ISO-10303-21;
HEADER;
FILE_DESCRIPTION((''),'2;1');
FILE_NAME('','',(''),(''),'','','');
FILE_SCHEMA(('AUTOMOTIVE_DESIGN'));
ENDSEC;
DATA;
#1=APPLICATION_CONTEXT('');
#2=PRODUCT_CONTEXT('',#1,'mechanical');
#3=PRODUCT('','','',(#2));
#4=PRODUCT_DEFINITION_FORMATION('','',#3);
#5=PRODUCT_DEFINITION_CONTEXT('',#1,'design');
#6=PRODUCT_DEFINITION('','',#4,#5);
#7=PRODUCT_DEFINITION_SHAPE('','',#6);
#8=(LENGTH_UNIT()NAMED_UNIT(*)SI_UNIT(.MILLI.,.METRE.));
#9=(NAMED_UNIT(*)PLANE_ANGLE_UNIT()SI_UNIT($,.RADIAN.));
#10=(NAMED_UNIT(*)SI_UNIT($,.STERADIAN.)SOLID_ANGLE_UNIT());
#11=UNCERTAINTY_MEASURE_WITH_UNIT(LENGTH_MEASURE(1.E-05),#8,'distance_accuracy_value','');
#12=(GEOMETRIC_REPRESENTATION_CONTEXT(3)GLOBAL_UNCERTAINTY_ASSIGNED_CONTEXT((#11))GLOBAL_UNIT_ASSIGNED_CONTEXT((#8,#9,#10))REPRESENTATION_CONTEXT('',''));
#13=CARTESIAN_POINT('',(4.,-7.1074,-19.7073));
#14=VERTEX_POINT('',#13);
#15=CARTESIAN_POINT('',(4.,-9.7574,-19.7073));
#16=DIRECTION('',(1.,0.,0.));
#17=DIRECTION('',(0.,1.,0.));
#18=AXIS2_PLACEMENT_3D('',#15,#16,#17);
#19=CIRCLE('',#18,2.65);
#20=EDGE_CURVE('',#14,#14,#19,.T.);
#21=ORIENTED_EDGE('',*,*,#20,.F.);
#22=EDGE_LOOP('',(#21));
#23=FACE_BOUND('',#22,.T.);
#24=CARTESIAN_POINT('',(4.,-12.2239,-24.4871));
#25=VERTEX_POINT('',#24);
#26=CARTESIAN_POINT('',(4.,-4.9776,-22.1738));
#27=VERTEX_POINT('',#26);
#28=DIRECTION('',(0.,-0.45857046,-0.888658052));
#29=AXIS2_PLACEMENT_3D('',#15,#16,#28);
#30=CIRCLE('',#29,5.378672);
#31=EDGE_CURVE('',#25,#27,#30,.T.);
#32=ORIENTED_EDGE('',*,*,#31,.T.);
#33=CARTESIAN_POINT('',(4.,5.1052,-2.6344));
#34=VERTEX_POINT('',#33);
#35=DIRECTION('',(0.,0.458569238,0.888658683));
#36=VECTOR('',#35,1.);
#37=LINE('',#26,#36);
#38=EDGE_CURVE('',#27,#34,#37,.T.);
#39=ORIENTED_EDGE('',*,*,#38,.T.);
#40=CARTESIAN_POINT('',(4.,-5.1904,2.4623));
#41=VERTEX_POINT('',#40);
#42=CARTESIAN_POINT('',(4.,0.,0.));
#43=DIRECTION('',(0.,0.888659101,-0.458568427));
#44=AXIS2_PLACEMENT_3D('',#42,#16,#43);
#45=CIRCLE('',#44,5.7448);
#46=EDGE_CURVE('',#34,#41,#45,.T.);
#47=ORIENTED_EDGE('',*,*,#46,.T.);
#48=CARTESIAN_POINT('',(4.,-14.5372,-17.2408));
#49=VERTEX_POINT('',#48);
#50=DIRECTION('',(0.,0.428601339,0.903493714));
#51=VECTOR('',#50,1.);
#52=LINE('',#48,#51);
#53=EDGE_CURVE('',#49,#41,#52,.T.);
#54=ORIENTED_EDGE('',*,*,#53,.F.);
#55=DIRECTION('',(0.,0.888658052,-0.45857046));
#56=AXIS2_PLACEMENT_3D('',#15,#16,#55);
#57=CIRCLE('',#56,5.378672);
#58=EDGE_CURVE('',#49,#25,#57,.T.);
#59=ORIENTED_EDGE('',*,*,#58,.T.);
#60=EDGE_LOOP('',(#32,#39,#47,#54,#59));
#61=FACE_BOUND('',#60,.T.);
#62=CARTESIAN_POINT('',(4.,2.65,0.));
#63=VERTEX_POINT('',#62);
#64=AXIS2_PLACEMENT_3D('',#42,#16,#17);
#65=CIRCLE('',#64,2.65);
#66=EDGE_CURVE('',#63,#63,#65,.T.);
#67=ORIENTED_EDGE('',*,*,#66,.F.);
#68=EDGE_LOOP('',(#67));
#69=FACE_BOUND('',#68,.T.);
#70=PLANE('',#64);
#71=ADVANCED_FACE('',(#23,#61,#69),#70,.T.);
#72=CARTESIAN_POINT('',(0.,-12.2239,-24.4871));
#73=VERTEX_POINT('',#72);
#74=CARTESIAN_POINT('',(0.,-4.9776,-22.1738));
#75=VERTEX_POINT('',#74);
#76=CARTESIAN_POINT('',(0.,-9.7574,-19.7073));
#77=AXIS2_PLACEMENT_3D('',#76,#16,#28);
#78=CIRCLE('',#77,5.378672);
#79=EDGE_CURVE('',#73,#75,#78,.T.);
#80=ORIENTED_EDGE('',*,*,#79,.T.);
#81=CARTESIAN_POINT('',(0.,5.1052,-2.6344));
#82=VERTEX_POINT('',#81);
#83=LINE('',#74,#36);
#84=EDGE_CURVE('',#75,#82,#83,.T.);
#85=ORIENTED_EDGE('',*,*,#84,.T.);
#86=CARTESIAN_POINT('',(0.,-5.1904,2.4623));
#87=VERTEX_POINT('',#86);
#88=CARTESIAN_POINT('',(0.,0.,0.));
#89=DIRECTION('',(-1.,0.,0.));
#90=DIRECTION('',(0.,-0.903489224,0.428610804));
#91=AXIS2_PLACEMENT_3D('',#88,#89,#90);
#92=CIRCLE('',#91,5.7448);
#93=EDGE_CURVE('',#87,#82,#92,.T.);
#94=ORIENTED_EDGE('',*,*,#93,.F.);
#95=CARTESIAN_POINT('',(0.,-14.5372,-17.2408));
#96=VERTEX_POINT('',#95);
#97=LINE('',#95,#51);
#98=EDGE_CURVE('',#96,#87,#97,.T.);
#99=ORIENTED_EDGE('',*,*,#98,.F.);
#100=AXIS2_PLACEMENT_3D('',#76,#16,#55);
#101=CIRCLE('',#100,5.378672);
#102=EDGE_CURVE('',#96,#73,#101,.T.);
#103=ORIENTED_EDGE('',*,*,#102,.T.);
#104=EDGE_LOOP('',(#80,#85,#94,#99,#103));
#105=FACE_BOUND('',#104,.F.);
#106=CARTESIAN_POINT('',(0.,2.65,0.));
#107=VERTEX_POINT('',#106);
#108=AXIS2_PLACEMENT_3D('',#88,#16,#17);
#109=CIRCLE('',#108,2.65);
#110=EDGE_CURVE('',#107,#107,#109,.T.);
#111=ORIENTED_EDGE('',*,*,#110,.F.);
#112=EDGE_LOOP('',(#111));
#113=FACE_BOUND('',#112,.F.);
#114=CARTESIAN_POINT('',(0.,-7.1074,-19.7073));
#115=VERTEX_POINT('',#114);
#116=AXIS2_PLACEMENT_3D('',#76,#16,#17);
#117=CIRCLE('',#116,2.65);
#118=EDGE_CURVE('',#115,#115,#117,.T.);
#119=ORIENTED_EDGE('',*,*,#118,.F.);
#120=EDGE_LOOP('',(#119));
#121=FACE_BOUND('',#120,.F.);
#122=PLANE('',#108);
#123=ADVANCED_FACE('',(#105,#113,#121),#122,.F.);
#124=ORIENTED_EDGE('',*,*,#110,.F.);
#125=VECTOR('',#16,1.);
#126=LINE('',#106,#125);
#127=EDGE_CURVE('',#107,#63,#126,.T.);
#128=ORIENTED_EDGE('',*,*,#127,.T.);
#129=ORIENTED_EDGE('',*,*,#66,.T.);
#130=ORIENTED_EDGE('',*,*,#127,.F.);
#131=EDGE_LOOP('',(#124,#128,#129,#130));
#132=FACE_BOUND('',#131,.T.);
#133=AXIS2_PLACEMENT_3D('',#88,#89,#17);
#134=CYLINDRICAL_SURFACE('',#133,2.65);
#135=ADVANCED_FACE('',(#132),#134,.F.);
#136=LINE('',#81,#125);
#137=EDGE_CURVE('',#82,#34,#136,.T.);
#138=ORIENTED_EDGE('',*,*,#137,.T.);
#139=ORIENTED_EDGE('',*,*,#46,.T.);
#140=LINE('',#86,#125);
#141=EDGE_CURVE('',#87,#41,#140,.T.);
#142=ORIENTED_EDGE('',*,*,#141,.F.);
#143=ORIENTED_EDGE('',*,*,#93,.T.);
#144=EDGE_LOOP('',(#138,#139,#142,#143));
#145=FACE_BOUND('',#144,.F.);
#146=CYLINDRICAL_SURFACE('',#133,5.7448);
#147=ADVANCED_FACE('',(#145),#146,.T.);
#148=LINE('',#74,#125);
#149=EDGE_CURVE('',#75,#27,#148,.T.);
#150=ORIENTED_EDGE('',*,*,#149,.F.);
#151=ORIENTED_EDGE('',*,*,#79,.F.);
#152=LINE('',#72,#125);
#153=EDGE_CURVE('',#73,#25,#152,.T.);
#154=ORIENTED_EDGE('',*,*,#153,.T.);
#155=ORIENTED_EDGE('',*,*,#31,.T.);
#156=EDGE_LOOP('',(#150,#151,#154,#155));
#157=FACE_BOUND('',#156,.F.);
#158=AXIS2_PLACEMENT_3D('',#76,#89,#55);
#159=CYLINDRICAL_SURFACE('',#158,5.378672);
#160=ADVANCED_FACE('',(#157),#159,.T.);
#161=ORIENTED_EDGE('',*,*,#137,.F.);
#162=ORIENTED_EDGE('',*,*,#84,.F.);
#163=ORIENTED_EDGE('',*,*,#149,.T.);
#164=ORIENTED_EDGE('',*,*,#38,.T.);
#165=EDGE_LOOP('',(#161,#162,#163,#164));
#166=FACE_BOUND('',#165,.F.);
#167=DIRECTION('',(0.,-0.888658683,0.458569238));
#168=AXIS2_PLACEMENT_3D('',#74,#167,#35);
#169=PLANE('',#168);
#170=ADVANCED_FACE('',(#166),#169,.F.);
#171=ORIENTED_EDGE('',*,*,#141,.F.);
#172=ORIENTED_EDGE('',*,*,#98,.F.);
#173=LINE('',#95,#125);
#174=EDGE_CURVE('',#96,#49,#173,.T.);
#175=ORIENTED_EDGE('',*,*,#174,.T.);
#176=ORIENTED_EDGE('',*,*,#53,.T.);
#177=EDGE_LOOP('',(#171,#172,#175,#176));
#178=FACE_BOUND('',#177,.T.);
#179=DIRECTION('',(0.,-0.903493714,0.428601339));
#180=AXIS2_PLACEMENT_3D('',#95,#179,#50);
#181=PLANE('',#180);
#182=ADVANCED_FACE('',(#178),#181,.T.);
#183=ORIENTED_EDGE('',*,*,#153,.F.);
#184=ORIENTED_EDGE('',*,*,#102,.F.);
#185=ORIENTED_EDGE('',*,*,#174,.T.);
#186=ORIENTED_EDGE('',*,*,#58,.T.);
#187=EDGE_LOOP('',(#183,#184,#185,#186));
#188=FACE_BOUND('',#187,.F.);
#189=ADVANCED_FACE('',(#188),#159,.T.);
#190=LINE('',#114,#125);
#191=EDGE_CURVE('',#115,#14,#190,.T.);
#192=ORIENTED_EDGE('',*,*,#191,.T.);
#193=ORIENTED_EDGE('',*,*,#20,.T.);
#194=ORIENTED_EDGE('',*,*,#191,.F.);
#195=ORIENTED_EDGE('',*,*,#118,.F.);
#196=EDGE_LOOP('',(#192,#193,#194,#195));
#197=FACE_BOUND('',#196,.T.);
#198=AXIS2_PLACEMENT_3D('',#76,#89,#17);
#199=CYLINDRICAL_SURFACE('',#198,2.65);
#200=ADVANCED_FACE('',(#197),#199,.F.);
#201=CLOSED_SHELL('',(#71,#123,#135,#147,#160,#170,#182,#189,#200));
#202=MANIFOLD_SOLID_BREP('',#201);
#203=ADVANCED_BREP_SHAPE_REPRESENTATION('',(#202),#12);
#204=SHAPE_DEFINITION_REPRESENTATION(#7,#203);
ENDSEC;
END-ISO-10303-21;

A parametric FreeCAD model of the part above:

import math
import FreeCAD as App
import Part
import Sketcher
Q = App.Units.Quantity

doc = App.newDocument("Part")
body = doc.addObject("PartDesign::Body", "Body")

# Sketch on YZ plane
sketch1 = body.newObject("Sketcher::SketchObject", "Sketch")
sketch1.AttachmentSupport = (doc.getObject("YZ_Plane"), [""])
sketch1.MapMode = "FlatFace"
sketch1.addGeometry([
    Part.ArcOfCircle(Part.Circle(App.Vector(-9.8, -19.7, 0), App.Vector(0, 0, 1), 5.4), math.radians(153), math.radians(333)),  # 0
    Part.LineSegment(App.Vector(-5, -22.2, 0), App.Vector(5.1, -2.6, 0)),  # 1
    Part.ArcOfCircle(Part.Circle(App.Vector(0, 0, 0), App.Vector(0, 0, 1), 5.7), math.radians(-27), math.radians(155)),  # 2
    Part.LineSegment(App.Vector(-5.2, 2.5, 0), App.Vector(-14.5, -17.2, 0)),  # 3
    Part.Circle(App.Vector(-9.8, -19.7, 0), App.Vector(0, 0, 1), 2.6),  # 4
    Part.Circle(App.Vector(0, 0, 0), App.Vector(0, 0, 1), 2.6),  # 5
], False)
sketch1.addConstraint([
    Sketcher.Constraint("Tangent", 0, 2, 1, 1),
    Sketcher.Constraint("Tangent", 1, 2, 2, 1),
    Sketcher.Constraint("Tangent", 2, 2, 3, 1),
    Sketcher.Constraint("Coincident", 3, 2, 0, 1),
    Sketcher.Constraint("Coincident", 2, 3, -1, 1),
    Sketcher.Constraint("Coincident", 5, 3, -1, 1),
    Sketcher.Constraint("Coincident", 4, 3, 0, 3),
    Sketcher.Constraint("Equal", 4, 5),
    Sketcher.Constraint("Diameter", 4, 5.3),
    Sketcher.Constraint("Radius", 0, 5.3787),
    Sketcher.Constraint("Radius", 2, 5.7448),
    Sketcher.Constraint("Distance", 1, 21.9875),
    Sketcher.Constraint("Distance", 3, 21.8077),
    Sketcher.Constraint("Angle", 3, Q("-115.3788 deg")),
])
pad1 = body.newObject("PartDesign::Pad", "Pad")
pad1.Profile = sketch1
pad1.Length = 4

doc.recompute()
